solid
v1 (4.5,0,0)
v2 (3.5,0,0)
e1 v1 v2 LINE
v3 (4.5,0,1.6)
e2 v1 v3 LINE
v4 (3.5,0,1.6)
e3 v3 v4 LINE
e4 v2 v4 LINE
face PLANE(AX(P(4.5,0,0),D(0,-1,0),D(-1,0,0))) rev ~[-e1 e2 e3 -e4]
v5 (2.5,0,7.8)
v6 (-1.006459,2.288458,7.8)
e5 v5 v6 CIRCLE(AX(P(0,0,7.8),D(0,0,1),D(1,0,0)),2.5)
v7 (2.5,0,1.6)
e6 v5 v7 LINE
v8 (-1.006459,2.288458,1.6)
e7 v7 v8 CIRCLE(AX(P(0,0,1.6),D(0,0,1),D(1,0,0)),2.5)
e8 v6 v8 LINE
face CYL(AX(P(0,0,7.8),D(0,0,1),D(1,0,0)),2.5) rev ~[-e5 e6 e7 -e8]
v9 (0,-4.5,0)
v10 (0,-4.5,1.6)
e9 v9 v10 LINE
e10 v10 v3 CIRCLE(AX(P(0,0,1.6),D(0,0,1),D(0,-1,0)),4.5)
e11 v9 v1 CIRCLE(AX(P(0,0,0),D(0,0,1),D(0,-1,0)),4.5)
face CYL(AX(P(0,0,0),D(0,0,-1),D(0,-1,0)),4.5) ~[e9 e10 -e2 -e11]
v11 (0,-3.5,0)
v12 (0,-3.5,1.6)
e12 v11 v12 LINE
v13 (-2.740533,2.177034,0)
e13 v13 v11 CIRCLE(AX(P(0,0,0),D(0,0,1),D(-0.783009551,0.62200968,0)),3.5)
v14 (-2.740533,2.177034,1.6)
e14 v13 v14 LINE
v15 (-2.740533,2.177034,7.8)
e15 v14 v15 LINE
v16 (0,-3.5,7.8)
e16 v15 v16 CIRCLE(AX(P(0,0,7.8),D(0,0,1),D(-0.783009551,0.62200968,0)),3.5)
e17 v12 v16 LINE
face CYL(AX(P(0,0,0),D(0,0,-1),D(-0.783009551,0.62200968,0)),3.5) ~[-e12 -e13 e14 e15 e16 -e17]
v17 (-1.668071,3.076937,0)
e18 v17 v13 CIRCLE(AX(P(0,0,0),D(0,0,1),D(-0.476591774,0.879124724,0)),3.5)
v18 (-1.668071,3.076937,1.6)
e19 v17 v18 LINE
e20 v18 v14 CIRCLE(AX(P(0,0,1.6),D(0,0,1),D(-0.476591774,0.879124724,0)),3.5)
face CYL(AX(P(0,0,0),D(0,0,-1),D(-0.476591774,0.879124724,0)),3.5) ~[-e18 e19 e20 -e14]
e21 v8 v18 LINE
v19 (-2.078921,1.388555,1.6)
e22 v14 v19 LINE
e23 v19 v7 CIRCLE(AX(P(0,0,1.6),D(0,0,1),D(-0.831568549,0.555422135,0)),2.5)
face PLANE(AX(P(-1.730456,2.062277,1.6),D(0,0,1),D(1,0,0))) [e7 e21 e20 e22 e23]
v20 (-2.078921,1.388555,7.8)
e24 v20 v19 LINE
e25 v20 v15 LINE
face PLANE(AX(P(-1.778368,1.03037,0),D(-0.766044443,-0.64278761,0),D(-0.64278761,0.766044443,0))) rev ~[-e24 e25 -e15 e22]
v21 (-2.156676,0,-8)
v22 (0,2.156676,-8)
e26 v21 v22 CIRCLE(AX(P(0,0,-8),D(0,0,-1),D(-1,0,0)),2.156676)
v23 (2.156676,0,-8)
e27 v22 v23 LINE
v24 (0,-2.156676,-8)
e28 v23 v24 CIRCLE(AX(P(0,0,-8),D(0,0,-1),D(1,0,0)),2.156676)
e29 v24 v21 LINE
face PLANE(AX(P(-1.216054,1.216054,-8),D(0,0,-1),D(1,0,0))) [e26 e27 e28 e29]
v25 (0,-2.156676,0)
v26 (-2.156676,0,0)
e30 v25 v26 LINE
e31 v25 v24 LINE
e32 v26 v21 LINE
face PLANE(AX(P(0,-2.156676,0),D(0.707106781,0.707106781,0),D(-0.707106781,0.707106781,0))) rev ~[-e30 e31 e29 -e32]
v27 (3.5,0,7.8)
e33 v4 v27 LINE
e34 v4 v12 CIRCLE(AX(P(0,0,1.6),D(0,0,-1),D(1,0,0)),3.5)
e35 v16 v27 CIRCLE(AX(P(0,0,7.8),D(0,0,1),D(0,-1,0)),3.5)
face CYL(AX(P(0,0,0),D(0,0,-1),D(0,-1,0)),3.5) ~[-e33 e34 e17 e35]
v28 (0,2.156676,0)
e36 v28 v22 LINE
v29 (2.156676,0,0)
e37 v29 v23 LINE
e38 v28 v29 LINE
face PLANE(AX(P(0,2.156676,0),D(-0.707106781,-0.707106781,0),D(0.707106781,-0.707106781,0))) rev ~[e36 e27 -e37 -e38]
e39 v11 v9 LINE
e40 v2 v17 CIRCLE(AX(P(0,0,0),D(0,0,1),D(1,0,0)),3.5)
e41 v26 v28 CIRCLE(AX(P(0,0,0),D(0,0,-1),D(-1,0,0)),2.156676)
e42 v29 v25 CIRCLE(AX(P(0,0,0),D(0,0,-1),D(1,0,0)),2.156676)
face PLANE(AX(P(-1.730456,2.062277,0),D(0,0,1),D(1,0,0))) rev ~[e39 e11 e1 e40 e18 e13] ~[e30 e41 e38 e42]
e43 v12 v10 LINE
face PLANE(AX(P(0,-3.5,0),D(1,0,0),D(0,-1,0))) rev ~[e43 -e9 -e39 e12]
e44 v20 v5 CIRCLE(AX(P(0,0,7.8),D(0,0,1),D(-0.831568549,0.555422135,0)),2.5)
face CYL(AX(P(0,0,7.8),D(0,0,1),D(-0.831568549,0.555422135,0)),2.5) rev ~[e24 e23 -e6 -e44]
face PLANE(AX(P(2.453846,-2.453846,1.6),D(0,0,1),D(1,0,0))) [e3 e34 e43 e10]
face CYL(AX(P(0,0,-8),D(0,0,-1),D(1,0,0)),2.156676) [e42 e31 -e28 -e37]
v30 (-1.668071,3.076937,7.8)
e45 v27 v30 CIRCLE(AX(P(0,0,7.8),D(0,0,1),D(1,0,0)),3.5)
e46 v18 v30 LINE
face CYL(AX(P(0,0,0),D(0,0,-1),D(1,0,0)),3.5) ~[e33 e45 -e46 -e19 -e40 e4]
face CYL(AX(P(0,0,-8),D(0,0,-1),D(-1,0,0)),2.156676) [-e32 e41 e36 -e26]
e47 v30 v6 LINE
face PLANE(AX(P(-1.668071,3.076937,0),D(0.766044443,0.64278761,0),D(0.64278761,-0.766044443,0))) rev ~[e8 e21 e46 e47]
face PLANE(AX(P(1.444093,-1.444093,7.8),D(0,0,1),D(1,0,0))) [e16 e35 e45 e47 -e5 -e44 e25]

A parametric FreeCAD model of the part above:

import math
import FreeCAD as App
import Part
import Sketcher
from FreeCAD import Vector
Q = App.Units.Quantity

doc = App.newDocument("Part")
body = doc.addObject("PartDesign::Body", "Body")

# Sketch on XY plane
sketch1 = doc.addObject("Sketcher::SketchObject", "Sketch")
body.addObject(sketch1)
sketch1.AttachmentSupport = (doc.XY_Plane, [""])
sketch1.MapMode = "FlatFace"
sketch1.addGeometry(Part.ArcOfCircle(Part.Circle(Vector(0, 0, 0), Vector(0, 0, 1), 3.5), math.radians(-90), math.radians(0)), False)
sketch1.addGeometry(Part.ArcOfCircle(Part.Circle(Vector(0, 0, 0), Vector(0, 0, 1), 3.5), math.radians(0), math.radians(118)), False)
sketch1.addGeometry(Part.LineSegment(Vector(-1.7, 3.1, 0), Vector(-0.7, 1.9, 0)), False)
sketch1.addGeometry(Part.LineSegment(Vector(-0.7, 1.9, 0), Vector(-1.2, 1.5, 0)), False)
sketch1.addGeometry(Part.LineSegment(Vector(-1.2, 1.5, 0), Vector(-1.8, 1, 0)), False)
sketch1.addGeometry(Part.LineSegment(Vector(-1.8, 1, 0), Vector(-2.7, 2.2, 0)), False)
sketch1.addGeometry(Part.ArcOfCircle(Part.Circle(Vector(0, 0, 0), Vector(0, 0, 1), 3.5), math.radians(142), math.radians(270)), False)
sketch1.addConstraint(Sketcher.Constraint("Tangent", 0, 2, 1, 1))
sketch1.addConstraint(Sketcher.Constraint("Coincident", 1, 2, 2, 1))
sketch1.addConstraint(Sketcher.Constraint("Coincident", 2, 2, 3, 1))
sketch1.addConstraint(Sketcher.Constraint("Coincident", 3, 2, 4, 1))
sketch1.addConstraint(Sketcher.Constraint("Coincident", 4, 2, 5, 1))
sketch1.addConstraint(Sketcher.Constraint("Coincident", 5, 2, 6, 1))
sketch1.addConstraint(Sketcher.Constraint("Tangent", 6, 2, 0, 1))
sketch1.addConstraint(Sketcher.Constraint("Coincident", 0, 3, -1, 1))
sketch1.addConstraint(Sketcher.Constraint("Equal", 0, 1))
sketch1.addConstraint(Sketcher.Constraint("Equal", 1, 6))
sketch1.addConstraint(Sketcher.Constraint("PointOnObject", 0, 2, -1))
sketch1.addConstraint(Sketcher.Constraint("PointOnObject", 6, 2, -2))
sketch1.addConstraint(Sketcher.Constraint("Perpendicular", 2, 3))
sketch1.addConstraint(Sketcher.Constraint("Parallel", 3, 4))
sketch1.addConstraint(Sketcher.Constraint("Perpendicular", 4, 5))
sketch1.addConstraint(Sketcher.Constraint("Equal", 3, 4))
sketch1.addConstraint(Sketcher.Constraint("Equal", 2, 5))
sketch1.addConstraint(Sketcher.Constraint("Radius", 0, Q("3.5 mm")))
sketch1.addConstraint(Sketcher.Constraint("Angle", 2, Q("-50 deg")))
sketch1.addConstraint(Sketcher.Constraint("Distance", 3, Q("0.7 mm")))
sketch1.addConstraint(Sketcher.Constraint("DistanceY", -1, 1, 3, 2, Q("1.480322 mm")))
pad1 = doc.addObject("PartDesign::Pad", "Pad")
body.addObject(pad1)
pad1.Profile = sketch1
pad1.Length = 7.8

# Sketch on XY plane
sketch2 = doc.addObject("Sketcher::SketchObject", "Sketch001")
body.addObject(sketch2)
sketch2.AttachmentSupport = (doc.XY_Plane, [""])
sketch2.MapMode = "FlatFace"
sketch2.AttachmentOffset = App.Placement(Vector(0, 0, 7.8), App.Rotation())
sketch2.addGeometry(Part.ArcOfCircle(Part.Circle(Vector(0, 0, 0), Vector(0, 0, 1), 2.5), math.radians(146), math.radians(360)), False)
sketch2.addGeometry(Part.ArcOfCircle(Part.Circle(Vector(0, 0, 0), Vector(0, 0, 1), 2.5), math.radians(0), math.radians(114)), False)
sketch2.addGeometry(Part.LineSegment(Vector(-1.01, 2.29, 0), Vector(-0.71, 1.93, 0)), False)
sketch2.addGeometry(Part.LineSegment(Vector(-0.71, 1.93, 0), Vector(-1.78, 1.03, 0)), False)
sketch2.addGeometry(Part.LineSegment(Vector(-1.78, 1.03, 0), Vector(-2.08, 1.39, 0)), False)
sketch2.addConstraint(Sketcher.Constraint("Tangent", 0, 2, 1, 1))
sketch2.addConstraint(Sketcher.Constraint("Coincident", 1, 2, 2, 1))
sketch2.addConstraint(Sketcher.Constraint("Coincident", 2, 2, 3, 1))
sketch2.addConstraint(Sketcher.Constraint("Coincident", 3, 2, 4, 1))
sketch2.addConstraint(Sketcher.Constraint("Coincident", 4, 2, 0, 1))
sketch2.addConstraint(Sketcher.Constraint("Coincident", 0, 3, -1, 1))
sketch2.addConstraint(Sketcher.Constraint("Equal", 0, 1))
sketch2.addConstraint(Sketcher.Constraint("PointOnObject", 0, 2, -1))
sketch2.addConstraint(Sketcher.Constraint("Perpendicular", 2, 3))
sketch2.addConstraint(Sketcher.Constraint("Perpendicular", 3, 4))
sketch2.addConstraint(Sketcher.Constraint("Equal", 2, 4))
sketch2.addConstraint(Sketcher.Constraint("Radius", 0, Q("2.5 mm")))
sketch2.addConstraint(Sketcher.Constraint("Angle", 2, Q("-50 deg")))
sketch2.addConstraint(Sketcher.Constraint("Distance", 3, Q("1.4 mm")))
sketch2.addConstraint(Sketcher.Constraint("DistanceX", 3, 2, -1, 1, Q("1.778368 mm")))
pocket1 = doc.addObject("PartDesign::Pocket", "Pocket")
body.addObject(pocket1)
pocket1.Profile = sketch2
pocket1.Length = 6.2

# Sketch on XY plane
sketch3 = doc.addObject("Sketcher::SketchObject", "Sketch002")
body.addObject(sketch3)
sketch3.AttachmentSupport = (doc.XY_Plane, [""])
sketch3.MapMode = "FlatFace"
sketch3.addGeometry(Part.LineSegment(Vector(-0.7, 1.9, 0), Vector(-1.7, 3.1, 0)), False)
sketch3.addGeometry(Part.ArcOfCircle(Part.Circle(Vector(0, 0, 0), Vector(0, 0, 1), 3.5), math.radians(118), math.radians(142)), False)
sketch3.addGeometry(Part.LineSegment(Vector(-2.7, 2.2, 0), Vector(-1.8, 1, 0)), False)
sketch3.addGeometry(Part.LineSegment(Vector(-1.8, 1, 0), Vector(-1.2, 1.5, 0)), False)
sketch3.addGeometry(Part.LineSegment(Vector(-1.2, 1.5, 0), Vector(-0.7, 1.9, 0)), False)
sketch3.addGeometry(Part.LineSegment(Vector(4.5, 0, 0), Vector(3.5, 0, 0)), False)
sketch3.addGeometry(Part.ArcOfCircle(Part.Circle(Vector(0, 0, 0), Vector(0, 0, 1), 3.5), math.radians(-90), math.radians(0)), False)
sketch3.addGeometry(Part.LineSegment(Vector(0, -3.5, 0), Vector(0, -4.5, 0)), False)
sketch3.addGeometry(Part.ArcOfCircle(Part.Circle(Vector(0, 0, 0), Vector(0, 0, 1), 4.5), math.radians(-90), math.radians(0)), False)
sketch3.addConstraint(Sketcher.Constraint("Coincident", 0, 2, 1, 1))
sketch3.addConstraint(Sketcher.Constraint("Coincident", 1, 2, 2, 1))
sketch3.addConstraint(Sketcher.Constraint("Coincident", 2, 2, 3, 1))
sketch3.addConstraint(Sketcher.Constraint("Coincident", 3, 2, 4, 1))
sketch3.addConstraint(Sketcher.Constraint("Coincident", 4, 2, 0, 1))
sketch3.addConstraint(Sketcher.Constraint("Coincident", 5, 2, 6, 2))
sketch3.addConstraint(Sketcher.Constraint("Coincident", 6, 1, 7, 1))
sketch3.addConstraint(Sketcher.Constraint("Coincident", 7, 2, 8, 1))
sketch3.addConstraint(Sketcher.Constraint("Coincident", 8, 2, 5, 1))
sketch3.addConstraint(Sketcher.Constraint("Horizontal", 5))
sketch3.addConstraint(Sketcher.Constraint("Vertical", 7))
sketch3.addConstraint(Sketcher.Constraint("Coincident", 1, 3, -1, 1))
sketch3.addConstraint(Sketcher.Constraint("Coincident", 6, 3, -1, 1))
sketch3.addConstraint(Sketcher.Constraint("Coincident", 8, 3, -1, 1))
sketch3.addConstraint(Sketcher.Constraint("Equal", 1, 6))
sketch3.addConstraint(Sketcher.Constraint("PointOnObject", 5, 2, -1))
sketch3.addConstraint(Sketcher.Constraint("PointOnObject", 6, 1, -2))
sketch3.addConstraint(Sketcher.Constraint("Parallel", 0, 2))
sketch3.addConstraint(Sketcher.Constraint("Perpendicular", 2, 3))
sketch3.addConstraint(Sketcher.Constraint("Parallel", 3, 4))
sketch3.addConstraint(Sketcher.Constraint("Equal", 0, 2))
sketch3.addConstraint(Sketcher.Constraint("Equal", 3, 4))
sketch3.addConstraint(Sketcher.Constraint("Radius", 1, Q("3.5 mm")))
sketch3.addConstraint(Sketcher.Constraint("Radius", 8, Q("4.5 mm")))
sketch3.addConstraint(Sketcher.Constraint("Angle", 0, Q("130 deg")))
sketch3.addConstraint(Sketcher.Constraint("Distance", 3, Q("0.7 mm")))
sketch3.addConstraint(Sketcher.Constraint("DistanceX", 2, 2, -1, 1, Q("1.778368 mm")))
pad2 = doc.addObject("PartDesign::Pad", "Pad001")
body.addObject(pad2)
pad2.Profile = sketch3
pad2.Length = 1.6

# Sketch on XY plane
sketch4 = doc.addObject("Sketcher::SketchObject", "Sketch003")
body.addObject(sketch4)
sketch4.AttachmentSupport = (doc.XY_Plane, [""])
sketch4.MapMode = "FlatFace"
sketch4.addGeometry(Part.LineSegment(Vector(-2.2, 0, 0), Vector(0, 2.2, 0)), False)
sketch4.addGeometry(Part.LineSegment(Vector(0, 2.2, 0), Vector(2.2, 0, 0)), False)
sketch4.addGeometry(Part.LineSegment(Vector(2.2, 0, 0), Vector(0, -2.2, 0)), False)
sketch4.addGeometry(Part.LineSegment(Vector(0, -2.2, 0), Vector(-2.2, 0, 0)), False)
sketch4.addConstraint(Sketcher.Constraint("Coincident", 0, 2, 1, 1))
sketch4.addConstraint(Sketcher.Constraint("Coincident", 1, 2, 2, 1))
sketch4.addConstraint(Sketcher.Constraint("Coincident", 2, 2, 3, 1))
sketch4.addConstraint(Sketcher.Constraint("Coincident", 3, 2, 0, 1))
sketch4.addConstraint(Sketcher.Constraint("Symmetric", 0, 2, 2, 2, -1, 1))
sketch4.addConstraint(Sketcher.Constraint("Symmetric", 1, 2, 3, 2, -1, 1))
sketch4.addConstraint(Sketcher.Constraint("PointOnObject", 0, 2, -2))
sketch4.addConstraint(Sketcher.Constraint("PointOnObject", 1, 2, -1))
sketch4.addConstraint(Sketcher.Constraint("Perpendicular", 0, 1))
sketch4.addConstraint(Sketcher.Constraint("Distance", 0, Q("3.05 mm")))
pad3 = doc.addObject("PartDesign::Pad", "Pad002")
body.addObject(pad3)
pad3.Profile = sketch4
pad3.Length = 8
pad3.Reversed = True

# Sketch on XY plane
sketch5 = doc.addObject("Sketcher::SketchObject", "Sketch004")
body.addObject(sketch5)
sketch5.AttachmentSupport = (doc.XY_Plane, [""])
sketch5.MapMode = "FlatFace"
sketch5.AttachmentOffset = App.Placement(Vector(0, 0, -8), App.Rotation())
sketch5.addGeometry(Part.LineSegment(Vector(0, 2.2, 0), Vector(-2.2, 0, 0)), False)
sketch5.addGeometry(Part.ArcOfCircle(Part.Circle(Vector(0, 0, 0), Vector(0, 0, 1), 2.2), math.radians(90), math.radians(180)), False)
sketch5.addGeometry(Part.ArcOfCircle(Part.Circle(Vector(0, 0, 0), Vector(0, 0, 1), 2.2), math.radians(-90), math.radians(0)), False)
sketch5.addGeometry(Part.LineSegment(Vector(0, -2.2, 0), Vector(2.2, 0, 0)), False)
sketch5.addConstraint(Sketcher.Constraint("Coincident", 0, 1, 1, 1))
sketch5.addConstraint(Sketcher.Constraint("Coincident", 1, 2, 0, 2))
sketch5.addConstraint(Sketcher.Constraint("Coincident", 2, 1, 3, 1))
sketch5.addConstraint(Sketcher.Constraint("Coincident", 3, 2, 2, 2))
sketch5.addConstraint(Sketcher.Constraint("Coincident", 1, 3, -1, 1))
sketch5.addConstraint(Sketcher.Constraint("Coincident", 2, 3, -1, 1))
sketch5.addConstraint(Sketcher.Constraint("Equal", 1, 2))
sketch5.addConstraint(Sketcher.Constraint("PointOnObject", 0, 1, -2))
sketch5.addConstraint(Sketcher.Constraint("PointOnObject", 1, 2, -1))
sketch5.addConstraint(Sketcher.Constraint("PointOnObject", 2, 1, -2))
sketch5.addConstraint(Sketcher.Constraint("PointOnObject", 3, 2, -1))
sketch5.addConstraint(Sketcher.Constraint("Distance", 0, Q("3.05 mm")))
pad4 = doc.addObject("PartDesign::Pad", "Pad003")
body.addObject(pad4)
pad4.Profile = sketch5
pad4.Length = 8.7

doc.recompute()
